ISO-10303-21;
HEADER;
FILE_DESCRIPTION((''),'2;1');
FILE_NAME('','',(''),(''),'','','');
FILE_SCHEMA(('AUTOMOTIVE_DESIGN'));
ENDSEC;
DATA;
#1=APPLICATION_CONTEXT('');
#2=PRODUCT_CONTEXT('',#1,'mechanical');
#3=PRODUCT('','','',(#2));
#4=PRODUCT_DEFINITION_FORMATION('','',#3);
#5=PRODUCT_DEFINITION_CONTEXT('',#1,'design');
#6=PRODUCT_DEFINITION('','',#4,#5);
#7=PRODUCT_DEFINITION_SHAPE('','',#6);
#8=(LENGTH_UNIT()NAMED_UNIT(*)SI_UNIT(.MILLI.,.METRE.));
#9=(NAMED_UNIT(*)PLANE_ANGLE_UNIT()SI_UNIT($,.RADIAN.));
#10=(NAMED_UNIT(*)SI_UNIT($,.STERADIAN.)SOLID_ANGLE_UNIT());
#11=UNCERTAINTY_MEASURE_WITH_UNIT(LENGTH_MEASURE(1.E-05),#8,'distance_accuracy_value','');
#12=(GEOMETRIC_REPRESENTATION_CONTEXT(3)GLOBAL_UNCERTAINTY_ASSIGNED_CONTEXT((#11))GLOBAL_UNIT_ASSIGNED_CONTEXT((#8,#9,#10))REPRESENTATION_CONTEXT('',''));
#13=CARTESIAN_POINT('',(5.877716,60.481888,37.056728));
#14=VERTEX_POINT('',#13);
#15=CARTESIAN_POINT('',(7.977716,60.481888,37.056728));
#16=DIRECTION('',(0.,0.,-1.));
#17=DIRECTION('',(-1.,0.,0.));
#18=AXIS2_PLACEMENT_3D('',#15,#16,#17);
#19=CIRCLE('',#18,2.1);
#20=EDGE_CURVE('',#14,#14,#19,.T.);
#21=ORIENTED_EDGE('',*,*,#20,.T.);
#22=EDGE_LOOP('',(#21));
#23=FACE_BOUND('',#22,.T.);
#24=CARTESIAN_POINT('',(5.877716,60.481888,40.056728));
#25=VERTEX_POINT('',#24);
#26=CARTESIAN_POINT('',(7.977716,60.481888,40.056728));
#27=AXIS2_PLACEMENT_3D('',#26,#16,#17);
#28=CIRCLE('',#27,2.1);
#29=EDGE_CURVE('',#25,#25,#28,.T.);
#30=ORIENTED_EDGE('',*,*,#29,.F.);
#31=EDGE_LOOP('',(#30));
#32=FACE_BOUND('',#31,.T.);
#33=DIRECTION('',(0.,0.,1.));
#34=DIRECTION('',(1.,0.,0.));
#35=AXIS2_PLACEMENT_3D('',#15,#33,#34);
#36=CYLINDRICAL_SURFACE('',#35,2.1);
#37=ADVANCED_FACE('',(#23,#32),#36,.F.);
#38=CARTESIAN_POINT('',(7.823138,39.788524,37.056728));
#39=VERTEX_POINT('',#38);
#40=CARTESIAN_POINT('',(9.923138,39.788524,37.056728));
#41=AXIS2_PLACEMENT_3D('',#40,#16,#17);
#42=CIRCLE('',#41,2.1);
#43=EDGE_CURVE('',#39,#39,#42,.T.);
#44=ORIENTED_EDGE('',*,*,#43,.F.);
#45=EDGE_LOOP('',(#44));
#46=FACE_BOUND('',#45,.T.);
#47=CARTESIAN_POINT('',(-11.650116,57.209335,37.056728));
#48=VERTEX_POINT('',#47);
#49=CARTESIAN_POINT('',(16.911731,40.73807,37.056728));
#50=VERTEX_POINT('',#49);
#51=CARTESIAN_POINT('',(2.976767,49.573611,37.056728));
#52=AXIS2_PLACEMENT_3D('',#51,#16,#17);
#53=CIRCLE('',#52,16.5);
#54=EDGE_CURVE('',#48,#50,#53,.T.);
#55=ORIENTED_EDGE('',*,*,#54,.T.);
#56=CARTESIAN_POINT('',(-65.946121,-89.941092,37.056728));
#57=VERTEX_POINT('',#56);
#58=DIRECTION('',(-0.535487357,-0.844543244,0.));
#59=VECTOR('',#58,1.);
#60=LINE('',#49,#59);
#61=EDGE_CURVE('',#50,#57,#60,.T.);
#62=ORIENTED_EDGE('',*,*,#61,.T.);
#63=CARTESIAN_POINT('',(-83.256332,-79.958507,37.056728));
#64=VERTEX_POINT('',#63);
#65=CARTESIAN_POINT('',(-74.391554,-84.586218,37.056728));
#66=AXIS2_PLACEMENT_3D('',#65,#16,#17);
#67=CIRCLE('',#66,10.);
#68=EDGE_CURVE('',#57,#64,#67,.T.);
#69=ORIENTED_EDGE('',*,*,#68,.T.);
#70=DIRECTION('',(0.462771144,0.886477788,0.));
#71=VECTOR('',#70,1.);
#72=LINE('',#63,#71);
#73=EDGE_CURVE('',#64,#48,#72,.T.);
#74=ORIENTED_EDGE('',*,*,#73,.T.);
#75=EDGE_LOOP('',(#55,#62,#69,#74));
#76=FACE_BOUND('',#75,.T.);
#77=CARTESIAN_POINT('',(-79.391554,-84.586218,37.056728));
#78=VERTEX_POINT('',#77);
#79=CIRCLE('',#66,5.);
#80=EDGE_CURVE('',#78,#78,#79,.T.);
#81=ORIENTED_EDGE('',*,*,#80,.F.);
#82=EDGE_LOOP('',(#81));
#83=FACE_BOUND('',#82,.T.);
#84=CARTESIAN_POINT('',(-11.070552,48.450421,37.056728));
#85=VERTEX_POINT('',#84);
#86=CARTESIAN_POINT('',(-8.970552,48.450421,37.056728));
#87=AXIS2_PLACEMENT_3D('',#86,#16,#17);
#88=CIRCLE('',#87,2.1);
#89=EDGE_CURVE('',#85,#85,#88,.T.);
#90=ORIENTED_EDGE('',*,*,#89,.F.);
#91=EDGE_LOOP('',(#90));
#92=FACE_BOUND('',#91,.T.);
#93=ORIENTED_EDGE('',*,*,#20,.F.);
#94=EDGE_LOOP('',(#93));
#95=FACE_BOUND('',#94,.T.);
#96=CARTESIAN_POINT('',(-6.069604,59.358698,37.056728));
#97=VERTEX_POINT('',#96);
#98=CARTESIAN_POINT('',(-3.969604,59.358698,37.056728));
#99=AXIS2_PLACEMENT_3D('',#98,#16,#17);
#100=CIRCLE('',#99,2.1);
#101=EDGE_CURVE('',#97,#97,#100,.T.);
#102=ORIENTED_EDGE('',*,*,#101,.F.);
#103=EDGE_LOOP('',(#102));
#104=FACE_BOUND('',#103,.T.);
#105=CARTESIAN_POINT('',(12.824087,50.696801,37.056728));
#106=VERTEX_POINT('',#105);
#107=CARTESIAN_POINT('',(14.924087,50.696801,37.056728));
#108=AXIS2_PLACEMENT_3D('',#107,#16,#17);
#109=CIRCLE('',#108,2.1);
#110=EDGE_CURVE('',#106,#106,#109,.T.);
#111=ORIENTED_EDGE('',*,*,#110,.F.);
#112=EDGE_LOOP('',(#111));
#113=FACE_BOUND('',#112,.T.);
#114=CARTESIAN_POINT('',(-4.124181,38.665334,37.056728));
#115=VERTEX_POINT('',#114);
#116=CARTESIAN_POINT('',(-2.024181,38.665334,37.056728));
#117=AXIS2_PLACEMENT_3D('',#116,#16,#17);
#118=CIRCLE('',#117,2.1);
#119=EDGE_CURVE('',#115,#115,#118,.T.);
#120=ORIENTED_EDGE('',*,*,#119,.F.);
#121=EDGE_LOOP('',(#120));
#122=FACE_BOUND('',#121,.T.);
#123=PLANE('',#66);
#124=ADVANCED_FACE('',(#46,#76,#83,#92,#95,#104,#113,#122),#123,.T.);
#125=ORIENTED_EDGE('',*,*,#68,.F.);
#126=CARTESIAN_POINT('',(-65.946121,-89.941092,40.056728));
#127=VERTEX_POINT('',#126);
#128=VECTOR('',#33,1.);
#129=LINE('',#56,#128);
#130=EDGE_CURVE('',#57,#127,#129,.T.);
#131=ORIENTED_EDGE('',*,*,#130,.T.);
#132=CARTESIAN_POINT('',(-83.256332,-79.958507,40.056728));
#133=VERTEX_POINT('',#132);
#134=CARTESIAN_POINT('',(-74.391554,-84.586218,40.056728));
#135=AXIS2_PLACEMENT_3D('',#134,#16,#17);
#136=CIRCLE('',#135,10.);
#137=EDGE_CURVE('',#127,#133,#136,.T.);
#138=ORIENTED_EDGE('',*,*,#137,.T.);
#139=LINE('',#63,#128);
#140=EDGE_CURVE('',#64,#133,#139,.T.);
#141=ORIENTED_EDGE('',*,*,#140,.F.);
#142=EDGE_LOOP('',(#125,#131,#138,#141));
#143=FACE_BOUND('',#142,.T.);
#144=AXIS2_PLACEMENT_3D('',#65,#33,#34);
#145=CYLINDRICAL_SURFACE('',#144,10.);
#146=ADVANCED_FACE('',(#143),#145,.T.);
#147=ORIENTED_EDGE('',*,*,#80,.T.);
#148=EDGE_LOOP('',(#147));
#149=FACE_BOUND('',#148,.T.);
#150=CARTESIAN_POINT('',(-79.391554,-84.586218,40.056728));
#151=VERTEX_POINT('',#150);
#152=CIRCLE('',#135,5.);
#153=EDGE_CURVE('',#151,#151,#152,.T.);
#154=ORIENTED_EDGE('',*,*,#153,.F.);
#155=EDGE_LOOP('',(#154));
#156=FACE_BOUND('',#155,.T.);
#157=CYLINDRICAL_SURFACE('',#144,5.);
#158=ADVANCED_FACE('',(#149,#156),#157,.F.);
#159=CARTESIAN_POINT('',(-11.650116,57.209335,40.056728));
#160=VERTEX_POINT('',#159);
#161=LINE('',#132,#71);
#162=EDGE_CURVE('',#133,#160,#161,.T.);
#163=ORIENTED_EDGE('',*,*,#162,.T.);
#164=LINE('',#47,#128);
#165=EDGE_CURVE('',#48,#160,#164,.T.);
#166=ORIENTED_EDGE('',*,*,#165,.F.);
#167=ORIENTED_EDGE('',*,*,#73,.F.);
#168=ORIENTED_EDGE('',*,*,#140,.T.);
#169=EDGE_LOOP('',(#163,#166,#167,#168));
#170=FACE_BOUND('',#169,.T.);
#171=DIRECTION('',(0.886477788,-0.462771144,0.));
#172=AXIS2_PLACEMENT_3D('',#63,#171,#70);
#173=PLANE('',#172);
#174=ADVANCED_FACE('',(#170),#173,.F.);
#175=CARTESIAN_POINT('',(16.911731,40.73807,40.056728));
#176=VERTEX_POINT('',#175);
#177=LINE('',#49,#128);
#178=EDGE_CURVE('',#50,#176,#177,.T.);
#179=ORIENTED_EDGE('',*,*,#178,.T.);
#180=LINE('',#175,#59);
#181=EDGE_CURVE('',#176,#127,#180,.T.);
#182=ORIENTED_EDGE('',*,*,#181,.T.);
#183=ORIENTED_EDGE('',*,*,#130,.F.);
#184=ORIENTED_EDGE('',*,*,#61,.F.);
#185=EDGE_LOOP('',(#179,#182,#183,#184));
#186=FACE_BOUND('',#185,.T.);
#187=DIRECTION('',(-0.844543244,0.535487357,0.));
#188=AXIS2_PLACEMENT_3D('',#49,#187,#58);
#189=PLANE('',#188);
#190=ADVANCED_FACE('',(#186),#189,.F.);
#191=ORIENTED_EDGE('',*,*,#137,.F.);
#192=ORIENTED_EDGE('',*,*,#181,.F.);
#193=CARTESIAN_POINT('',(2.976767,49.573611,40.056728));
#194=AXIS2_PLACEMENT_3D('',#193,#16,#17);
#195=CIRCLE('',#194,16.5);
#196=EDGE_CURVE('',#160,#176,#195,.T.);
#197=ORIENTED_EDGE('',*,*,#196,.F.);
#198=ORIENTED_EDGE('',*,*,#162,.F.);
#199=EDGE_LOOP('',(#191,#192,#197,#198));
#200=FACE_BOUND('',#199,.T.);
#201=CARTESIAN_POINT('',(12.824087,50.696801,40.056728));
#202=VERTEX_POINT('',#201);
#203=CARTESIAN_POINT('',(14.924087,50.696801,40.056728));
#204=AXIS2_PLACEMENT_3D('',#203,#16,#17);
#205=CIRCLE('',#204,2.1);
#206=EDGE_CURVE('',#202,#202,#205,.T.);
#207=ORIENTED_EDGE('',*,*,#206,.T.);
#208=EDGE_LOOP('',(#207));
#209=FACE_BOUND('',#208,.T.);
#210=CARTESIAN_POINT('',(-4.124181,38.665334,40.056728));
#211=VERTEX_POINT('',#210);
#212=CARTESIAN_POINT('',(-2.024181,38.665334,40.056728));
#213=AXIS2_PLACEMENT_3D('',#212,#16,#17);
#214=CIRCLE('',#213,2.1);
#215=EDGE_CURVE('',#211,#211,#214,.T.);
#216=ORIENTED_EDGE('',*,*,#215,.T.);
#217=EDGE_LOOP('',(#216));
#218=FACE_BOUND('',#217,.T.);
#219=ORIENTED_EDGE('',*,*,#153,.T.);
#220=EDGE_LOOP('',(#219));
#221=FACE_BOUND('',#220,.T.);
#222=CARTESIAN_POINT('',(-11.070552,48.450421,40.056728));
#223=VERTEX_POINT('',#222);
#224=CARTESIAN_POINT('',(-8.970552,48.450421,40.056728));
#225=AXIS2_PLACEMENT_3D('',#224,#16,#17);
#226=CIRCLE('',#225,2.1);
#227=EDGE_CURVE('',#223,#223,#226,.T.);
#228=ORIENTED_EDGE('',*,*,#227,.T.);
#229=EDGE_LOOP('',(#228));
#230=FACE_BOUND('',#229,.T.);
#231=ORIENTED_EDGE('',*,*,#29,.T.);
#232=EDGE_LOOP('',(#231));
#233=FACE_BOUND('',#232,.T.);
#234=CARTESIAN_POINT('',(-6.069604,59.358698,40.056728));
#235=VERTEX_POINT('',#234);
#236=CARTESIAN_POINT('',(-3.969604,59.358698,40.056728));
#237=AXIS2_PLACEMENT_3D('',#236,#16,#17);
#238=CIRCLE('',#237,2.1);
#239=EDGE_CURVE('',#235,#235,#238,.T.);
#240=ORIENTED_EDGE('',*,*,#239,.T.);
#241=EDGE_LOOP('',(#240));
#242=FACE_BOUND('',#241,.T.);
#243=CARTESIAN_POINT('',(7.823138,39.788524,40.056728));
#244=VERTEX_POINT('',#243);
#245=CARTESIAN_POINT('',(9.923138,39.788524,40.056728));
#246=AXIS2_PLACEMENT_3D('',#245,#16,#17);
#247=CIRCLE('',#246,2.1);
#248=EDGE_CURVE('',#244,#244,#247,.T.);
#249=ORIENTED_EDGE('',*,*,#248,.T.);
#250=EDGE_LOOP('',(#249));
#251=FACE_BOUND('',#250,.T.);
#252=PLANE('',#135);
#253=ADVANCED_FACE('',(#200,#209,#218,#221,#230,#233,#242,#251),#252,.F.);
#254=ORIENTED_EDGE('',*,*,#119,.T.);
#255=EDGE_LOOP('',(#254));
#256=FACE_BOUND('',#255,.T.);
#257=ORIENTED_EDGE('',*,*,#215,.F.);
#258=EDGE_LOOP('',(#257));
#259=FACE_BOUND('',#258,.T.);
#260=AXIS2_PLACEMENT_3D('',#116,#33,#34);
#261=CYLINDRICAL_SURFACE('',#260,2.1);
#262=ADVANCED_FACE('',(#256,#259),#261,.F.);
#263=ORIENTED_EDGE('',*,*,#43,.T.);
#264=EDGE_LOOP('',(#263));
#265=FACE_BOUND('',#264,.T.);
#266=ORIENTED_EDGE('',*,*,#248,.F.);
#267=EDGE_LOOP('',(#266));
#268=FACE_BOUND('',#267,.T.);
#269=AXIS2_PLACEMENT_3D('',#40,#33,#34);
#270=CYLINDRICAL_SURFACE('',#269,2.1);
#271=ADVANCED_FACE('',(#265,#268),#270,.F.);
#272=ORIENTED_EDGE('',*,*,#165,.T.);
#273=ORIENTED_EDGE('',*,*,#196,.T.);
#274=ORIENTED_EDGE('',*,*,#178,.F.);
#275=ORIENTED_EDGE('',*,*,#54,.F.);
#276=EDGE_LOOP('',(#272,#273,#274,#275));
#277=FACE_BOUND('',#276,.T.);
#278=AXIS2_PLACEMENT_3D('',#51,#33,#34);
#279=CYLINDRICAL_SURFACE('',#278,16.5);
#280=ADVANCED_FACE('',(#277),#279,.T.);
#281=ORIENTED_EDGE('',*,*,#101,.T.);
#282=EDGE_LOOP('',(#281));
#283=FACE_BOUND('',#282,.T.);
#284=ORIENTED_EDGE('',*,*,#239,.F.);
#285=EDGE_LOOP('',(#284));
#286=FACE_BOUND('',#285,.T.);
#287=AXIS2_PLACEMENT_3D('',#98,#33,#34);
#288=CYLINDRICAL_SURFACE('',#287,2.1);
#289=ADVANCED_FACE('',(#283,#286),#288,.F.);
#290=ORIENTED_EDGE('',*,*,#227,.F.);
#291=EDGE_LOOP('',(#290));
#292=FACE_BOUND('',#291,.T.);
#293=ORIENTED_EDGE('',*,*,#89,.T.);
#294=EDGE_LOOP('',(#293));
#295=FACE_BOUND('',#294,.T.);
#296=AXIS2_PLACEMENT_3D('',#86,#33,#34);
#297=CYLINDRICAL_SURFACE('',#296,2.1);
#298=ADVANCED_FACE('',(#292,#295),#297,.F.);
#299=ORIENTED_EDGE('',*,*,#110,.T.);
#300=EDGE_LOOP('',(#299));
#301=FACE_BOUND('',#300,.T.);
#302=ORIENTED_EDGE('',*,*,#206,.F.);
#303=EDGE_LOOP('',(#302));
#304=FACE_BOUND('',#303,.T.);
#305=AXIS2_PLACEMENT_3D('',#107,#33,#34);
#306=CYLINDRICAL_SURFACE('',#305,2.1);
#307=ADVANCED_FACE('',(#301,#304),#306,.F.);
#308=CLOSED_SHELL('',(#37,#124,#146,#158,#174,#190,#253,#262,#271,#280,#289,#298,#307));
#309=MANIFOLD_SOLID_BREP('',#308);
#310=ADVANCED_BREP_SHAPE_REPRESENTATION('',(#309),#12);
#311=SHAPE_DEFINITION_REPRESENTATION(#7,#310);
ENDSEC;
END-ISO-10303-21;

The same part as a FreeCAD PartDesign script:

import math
import FreeCAD as App
import Part
import Sketcher
Q = App.Units.Quantity

doc = App.newDocument("Part")
params = doc.addObject("Spreadsheet::Sheet", "Params")
for row, (alias, value) in enumerate([
    ("sketch1_diameter", "10 mm"),
    ("sketch1_radius", "10 mm"),
    ("sketch1_diameter2", "4.2 mm"),
    ("sketch1_radius2", "16.5 mm"),
    ("pad1_length", "3 mm"),
], start=1):
    params.set(f"A{row}", alias)
    params.set(f"B{row}", "=" + value)
    params.setAlias(f"B{row}", alias)

body = doc.addObject("PartDesign::Body", "Body")

# Sketch on XY plane
sketch1 = body.newObject("Sketcher::SketchObject", "Sketch")
sketch1.AttachmentSupport = (doc.getObject("XY_Plane"), [""])
sketch1.MapMode = "FlatFace"
sketch1.AttachmentOffset = App.Placement(App.Vector(0, 0, 40.056728), App.Rotation())
sketch1.addGeometry(Part.LineSegment(App.Vector(-83.3, -80, 0), App.Vector(-11.7, 57.2, 0)), False)
sketch1.addGeometry(Part.ArcOfCircle(Part.Circle(App.Vector(3, 49.6, 0), App.Vector(0, 0, 1), 16.5), math.radians(-32), math.radians(152)), False)
sketch1.addGeometry(Part.LineSegment(App.Vector(16.9, 40.7, 0), App.Vector(-65.9, -89.9, 0)), False)
sketch1.addGeometry(Part.ArcOfCircle(Part.Circle(App.Vector(-74.4, -84.6, 0), App.Vector(0, 0, 1), 10), math.radians(152), math.radians(328)), False)
sketch1.addGeometry(Part.Circle(App.Vector(-74.4, -84.6, 0), App.Vector(0, 0, 1), 5), False)
sketch1.addGeometry(Part.Circle(App.Vector(9.9, 39.8, 0), App.Vector(0, 0, 1), 2.1), False)
sketch1.addGeometry(Part.Circle(App.Vector(-2, 38.7, 0), App.Vector(0, 0, 1), 2.1), False)
sketch1.addGeometry(Part.Circle(App.Vector(14.9, 50.7, 0), App.Vector(0, 0, 1), 2.1), False)
sketch1.addGeometry(Part.Circle(App.Vector(8, 60.5, 0), App.Vector(0, 0, 1), 2.1), False)
sketch1.addGeometry(Part.Circle(App.Vector(-4, 59.4, 0), App.Vector(0, 0, 1), 2.1), False)
sketch1.addGeometry(Part.Circle(App.Vector(-9, 48.5, 0), App.Vector(0, 0, 1), 2.1), False)
sketch1.addConstraint(Sketcher.Constraint("Tangent", 0, 2, 1, 2))
sketch1.addConstraint(Sketcher.Constraint("Tangent", 1, 1, 2, 1))
sketch1.addConstraint(Sketcher.Constraint("Tangent", 2, 2, 3, 2))
sketch1.addConstraint(Sketcher.Constraint("Tangent", 3, 1, 0, 1))
sketch1.addConstraint(Sketcher.Constraint("Coincident", 4, 3, 3, 3))
sketch1.addConstraint(Sketcher.Constraint("Equal", 5, 6))
sketch1.addConstraint(Sketcher.Constraint("Equal", 6, 7))
sketch1.addConstraint(Sketcher.Constraint("Equal", 7, 8))
sketch1.addConstraint(Sketcher.Constraint("Equal", 8, 9))
sketch1.addConstraint(Sketcher.Constraint("Equal", 9, 10))
sketch1.addConstraint(Sketcher.Constraint("Diameter", 4, Q("10 mm")))
sketch1.addConstraint(Sketcher.Constraint("Radius", 3, Q("10 mm")))
sketch1.addConstraint(Sketcher.Constraint("Diameter", 5, Q("4.2 mm")))
sketch1.addConstraint(Sketcher.Constraint("Radius", 1, Q("16.5 mm")))
sketch1.addConstraint(Sketcher.Constraint("DistanceY", 6, 3, 0, 2, Q("18.544001 mm")))
sketch1.addConstraint(Sketcher.Constraint("DistanceY", -1, 1, 7, 3, Q("50.696801 mm")))
sketch1.addConstraint(Sketcher.Constraint("DistanceY", -1, 1, 9, 3, Q("59.358698 mm")))
sketch1.addConstraint(Sketcher.Constraint("DistanceY", -1, 1, 1, 3, Q("49.573611 mm")))
sketch1.addConstraint(Sketcher.Constraint("DistanceY", 3, 3, -1, 1, Q("84.586218 mm")))
sketch1.addConstraint(Sketcher.Constraint("DistanceX", -1, 1, 5, 3, Q("9.923138 mm")))
sketch1.addConstraint(Sketcher.Constraint("DistanceX", 6, 3, -1, 1, Q("2.024181 mm")))
sketch1.addConstraint(Sketcher.Constraint("DistanceY", -1, 1, 8, 3, Q("60.481888 mm")))
sketch1.addConstraint(Sketcher.Constraint("DistanceY", -1, 1, 10, 3, Q("48.450421 mm")))
sketch1.addConstraint(Sketcher.Constraint("DistanceX", -1, 1, 1, 1, Q("16.911731 mm")))
sketch1.addConstraint(Sketcher.Constraint("DistanceY", -1, 1, 1, 1, Q("40.73807 mm")))
sketch1.addConstraint(Sketcher.Constraint("DistanceY", 6, 3, 5, 3, Q("1.12319 mm")))
sketch1.addConstraint(Sketcher.Constraint("DistanceX", 5, 3, 7, 3, Q("5.000949 mm")))
sketch1.addConstraint(Sketcher.Constraint("DistanceX", 8, 3, 7, 3, Q("6.946371 mm")))
sketch1.addConstraint(Sketcher.Constraint("DistanceX", 9, 3, 1, 3, Q("6.946371 mm")))
sketch1.addConstraint(Sketcher.Constraint("DistanceX", 10, 3, 1, 3, Q("11.94732 mm")))
sketch1.setExpression("Constraints[10]", "Params.sketch1_diameter")
sketch1.setExpression("Constraints[11]", "Params.sketch1_radius")
sketch1.setExpression("Constraints[12]", "Params.sketch1_diameter2")
sketch1.setExpression("Constraints[13]", "Params.sketch1_radius2")
pad1 = body.newObject("PartDesign::Pad", "Pad")
pad1.Profile = sketch1
pad1.setExpression("Length", "Params.pad1_length")
pad1.Reversed = True

doc.recompute()
